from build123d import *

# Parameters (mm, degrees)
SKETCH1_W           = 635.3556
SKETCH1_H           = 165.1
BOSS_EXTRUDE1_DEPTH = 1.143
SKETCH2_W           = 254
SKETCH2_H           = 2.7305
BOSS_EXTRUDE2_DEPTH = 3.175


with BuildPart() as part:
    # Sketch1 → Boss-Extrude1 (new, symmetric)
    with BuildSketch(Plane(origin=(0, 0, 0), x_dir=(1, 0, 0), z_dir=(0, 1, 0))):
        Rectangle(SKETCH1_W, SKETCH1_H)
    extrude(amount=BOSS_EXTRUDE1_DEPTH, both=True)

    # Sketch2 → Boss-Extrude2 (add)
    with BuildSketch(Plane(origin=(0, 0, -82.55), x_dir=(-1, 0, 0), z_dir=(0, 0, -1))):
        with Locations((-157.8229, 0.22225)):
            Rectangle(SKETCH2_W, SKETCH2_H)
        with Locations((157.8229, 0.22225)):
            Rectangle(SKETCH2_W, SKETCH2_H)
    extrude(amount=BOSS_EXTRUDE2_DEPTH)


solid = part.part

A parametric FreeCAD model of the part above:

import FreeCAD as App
import Part
import Sketcher
Q = App.Units.Quantity

doc = App.newDocument("Part")
body = doc.addObject("PartDesign::Body", "Body")

# Sketch on XZ plane
sketch1 = doc.addObject("Sketcher::SketchObject", "Sketch")
body.addObject(sketch1)
sketch1.AttachmentSupport = (doc.XZ_Plane, [""])
sketch1.MapMode = "FlatFace"
sketch1.addGeometry(Part.LineSegment(App.Vector(-318, -83, 0), App.Vector(-318, 83, 0)), False)
sketch1.addGeometry(Part.LineSegment(App.Vector(-318, 83, 0), App.Vector(318, 83, 0)), False)
sketch1.addGeometry(Part.LineSegment(App.Vector(318, 83, 0), App.Vector(318, -83, 0)), False)
sketch1.addGeometry(Part.LineSegment(App.Vector(318, -83, 0), App.Vector(-318, -83, 0)), False)
sketch1.addConstraint(Sketcher.Constraint("Coincident", 0, 2, 1, 1))
sketch1.addConstraint(Sketcher.Constraint("Coincident", 1, 2, 2, 1))
sketch1.addConstraint(Sketcher.Constraint("Coincident", 2, 2, 3, 1))
sketch1.addConstraint(Sketcher.Constraint("Coincident", 3, 2, 0, 1))
sketch1.addConstraint(Sketcher.Constraint("Vertical", 0))
sketch1.addConstraint(Sketcher.Constraint("Horizontal", 1))
sketch1.addConstraint(Sketcher.Constraint("Vertical", 2))
sketch1.addConstraint(Sketcher.Constraint("Horizontal", 3))
sketch1.addConstraint(Sketcher.Constraint("Symmetric", 0, 2, 2, 2, -1, 1))
sketch1.addConstraint(Sketcher.Constraint("DistanceY", 0, 1, 0, 2, Q("6.5 in")))
sketch1.addConstraint(Sketcher.Constraint("DistanceX", 1, 1, 1, 2, Q("25.014 in")))
pad1 = doc.addObject("PartDesign::Pad", "Pad")
body.addObject(pad1)
pad1.Profile = sketch1
pad1.Length = Q("0.09 in")
pad1.Midplane = True

# Sketch on XY plane
sketch2 = doc.addObject("Sketcher::SketchObject", "Sketch001")
body.addObject(sketch2)
sketch2.AttachmentSupport = (doc.XY_Plane, [""])
sketch2.MapMode = "FlatFace"
sketch2.AttachmentOffset = App.Placement(App.Vector(0, 0, -3.25 * 25.4), App.Rotation())
sketch2.addGeometry(Part.LineSegment(App.Vector(284.8, 1.6, 0), App.Vector(284.8, -1.1, 0)), False)
sketch2.addGeometry(Part.LineSegment(App.Vector(284.8, -1.1, 0), App.Vector(30.8, -1.1, 0)), False)
sketch2.addGeometry(Part.LineSegment(App.Vector(30.8, -1.1, 0), App.Vector(30.8, 1.6, 0)), False)
sketch2.addGeometry(Part.LineSegment(App.Vector(30.8, 1.6, 0), App.Vector(284.8, 1.6, 0)), False)
sketch2.addGeometry(Part.LineSegment(App.Vector(-30.8, 1.6, 0), App.Vector(-30.8, -1.1, 0)), False)
sketch2.addGeometry(Part.LineSegment(App.Vector(-30.8, -1.1, 0), App.Vector(-284.8, -1.1, 0)), False)
sketch2.addGeometry(Part.LineSegment(App.Vector(-284.8, -1.1, 0), App.Vector(-284.8, 1.6, 0)), False)
sketch2.addGeometry(Part.LineSegment(App.Vector(-284.8, 1.6, 0), App.Vector(-30.8, 1.6, 0)), False)
sketch2.addConstraint(Sketcher.Constraint("Coincident", 0, 2, 1, 1))
sketch2.addConstraint(Sketcher.Constraint("Coincident", 1, 2, 2, 1))
sketch2.addConstraint(Sketcher.Constraint("Coincident", 2, 2, 3, 1))
sketch2.addConstraint(Sketcher.Constraint("Coincident", 3, 2, 0, 1))
sketch2.addConstraint(Sketcher.Constraint("Coincident", 4, 2, 5, 1))
sketch2.addConstraint(Sketcher.Constraint("Coincident", 5, 2, 6, 1))
sketch2.addConstraint(Sketcher.Constraint("Coincident", 6, 2, 7, 1))
sketch2.addConstraint(Sketcher.Constraint("Coincident", 7, 2, 4, 1))
sketch2.addConstraint(Sketcher.Constraint("Vertical", 0))
sketch2.addConstraint(Sketcher.Constraint("Horizontal", 1))
sketch2.addConstraint(Sketcher.Constraint("Vertical", 2))
sketch2.addConstraint(Sketcher.Constraint("Horizontal", 3))
sketch2.addConstraint(Sketcher.Constraint("Vertical", 4))
sketch2.addConstraint(Sketcher.Constraint("Horizontal", 5))
sketch2.addConstraint(Sketcher.Constraint("Vertical", 6))
sketch2.addConstraint(Sketcher.Constraint("Horizontal", 7))
sketch2.addConstraint(Sketcher.Constraint("Symmetric", 1, 2, 4, 2, -2))
sketch2.addConstraint(Sketcher.Constraint("Symmetric", 3, 2, 6, 2, -2))
sketch2.addConstraint(Sketcher.Constraint("DistanceX", 1, 2, 1, 1, Q("10 in")))
sketch2.addConstraint(Sketcher.Constraint("DistanceY", 0, 2, 0, 1, Q("0.1075 in")))
sketch2.addConstraint(Sketcher.Constraint("DistanceY", 0, 2, -1, 1, Q("0.045 in")))
sketch2.addConstraint(Sketcher.Constraint("DistanceX", 4, 2, 1, 2, Q("2.427 in")))
pad2 = doc.addObject("PartDesign::Pad", "Pad001")
body.addObject(pad2)
pad2.Profile = sketch2
pad2.Length = Q("0.125 in")
pad2.Reversed = True

doc.recompute()
